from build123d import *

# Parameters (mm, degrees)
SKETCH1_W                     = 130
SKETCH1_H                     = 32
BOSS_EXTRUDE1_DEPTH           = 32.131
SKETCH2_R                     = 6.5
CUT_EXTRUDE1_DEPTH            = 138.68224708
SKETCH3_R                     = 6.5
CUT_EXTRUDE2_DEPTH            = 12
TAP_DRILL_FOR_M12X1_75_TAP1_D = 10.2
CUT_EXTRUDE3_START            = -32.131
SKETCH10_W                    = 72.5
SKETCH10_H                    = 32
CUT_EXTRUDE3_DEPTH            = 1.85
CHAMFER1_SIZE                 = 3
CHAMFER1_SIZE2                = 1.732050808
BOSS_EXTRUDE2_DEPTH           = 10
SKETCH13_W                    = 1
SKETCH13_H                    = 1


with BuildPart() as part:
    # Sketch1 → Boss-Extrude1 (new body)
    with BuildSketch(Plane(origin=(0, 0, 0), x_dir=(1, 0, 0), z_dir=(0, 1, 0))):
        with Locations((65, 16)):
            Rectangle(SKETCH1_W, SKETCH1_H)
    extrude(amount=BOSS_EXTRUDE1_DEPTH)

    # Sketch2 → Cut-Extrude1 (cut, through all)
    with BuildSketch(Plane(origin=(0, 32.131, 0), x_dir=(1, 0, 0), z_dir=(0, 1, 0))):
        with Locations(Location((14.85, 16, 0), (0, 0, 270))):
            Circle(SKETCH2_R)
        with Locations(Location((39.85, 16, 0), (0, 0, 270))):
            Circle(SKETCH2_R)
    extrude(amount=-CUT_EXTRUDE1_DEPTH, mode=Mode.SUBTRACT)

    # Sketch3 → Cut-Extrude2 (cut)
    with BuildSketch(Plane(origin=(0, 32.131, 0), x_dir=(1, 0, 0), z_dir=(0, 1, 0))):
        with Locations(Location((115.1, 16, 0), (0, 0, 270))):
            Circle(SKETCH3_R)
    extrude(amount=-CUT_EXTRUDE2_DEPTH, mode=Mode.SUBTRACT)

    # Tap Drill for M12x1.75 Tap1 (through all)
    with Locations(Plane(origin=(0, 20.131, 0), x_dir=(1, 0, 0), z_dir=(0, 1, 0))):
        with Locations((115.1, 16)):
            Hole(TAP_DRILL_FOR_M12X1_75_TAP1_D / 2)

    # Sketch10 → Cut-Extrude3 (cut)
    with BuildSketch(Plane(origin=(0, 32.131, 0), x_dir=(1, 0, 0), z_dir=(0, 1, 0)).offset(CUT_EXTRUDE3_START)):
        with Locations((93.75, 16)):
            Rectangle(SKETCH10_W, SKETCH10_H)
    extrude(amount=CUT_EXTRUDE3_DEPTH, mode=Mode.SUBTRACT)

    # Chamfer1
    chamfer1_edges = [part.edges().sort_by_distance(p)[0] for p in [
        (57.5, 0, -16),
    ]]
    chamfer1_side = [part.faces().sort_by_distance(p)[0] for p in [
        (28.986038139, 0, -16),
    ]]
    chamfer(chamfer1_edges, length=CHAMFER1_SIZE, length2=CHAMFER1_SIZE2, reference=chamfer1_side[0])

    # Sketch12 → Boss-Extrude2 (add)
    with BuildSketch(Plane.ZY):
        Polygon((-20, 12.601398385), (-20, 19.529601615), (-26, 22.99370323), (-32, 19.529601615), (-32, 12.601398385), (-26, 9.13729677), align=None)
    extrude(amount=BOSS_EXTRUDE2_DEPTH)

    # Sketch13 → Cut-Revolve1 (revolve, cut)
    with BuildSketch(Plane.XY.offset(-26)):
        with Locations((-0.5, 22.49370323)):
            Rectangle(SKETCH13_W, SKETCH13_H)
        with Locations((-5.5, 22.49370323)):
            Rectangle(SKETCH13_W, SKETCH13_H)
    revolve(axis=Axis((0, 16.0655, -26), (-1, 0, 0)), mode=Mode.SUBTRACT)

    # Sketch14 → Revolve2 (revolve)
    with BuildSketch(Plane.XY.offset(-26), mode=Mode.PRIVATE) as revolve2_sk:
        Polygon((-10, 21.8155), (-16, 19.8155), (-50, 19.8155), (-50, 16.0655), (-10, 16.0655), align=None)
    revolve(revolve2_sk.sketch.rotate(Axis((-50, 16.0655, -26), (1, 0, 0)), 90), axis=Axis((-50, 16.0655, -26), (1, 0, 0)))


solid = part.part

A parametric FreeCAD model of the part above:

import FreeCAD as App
import Part
import Sketcher

V = App.Vector
Q = App.Units.Quantity


def edges_at(feature, points):
    """Names of the edges that pass closest to the given points."""
    edges = feature.Shape.Edges
    near = lambda p: min(range(len(edges)), key=lambda i: edges[i].distToShape(Part.Vertex(*p))[0])
    return sorted({f"Edge{near(p) + 1}" for p in points})

doc = App.newDocument("Part")
body = doc.addObject("PartDesign::Body", "Body")

# Sketch on XZ plane
sketch1 = body.newObject("Sketcher::SketchObject", "Sketch")
sketch1.AttachmentSupport = (doc.getObject("XZ_Plane"), [""])
sketch1.MapMode = "FlatFace"
sketch1.addGeometry(Part.LineSegment(V(0, -32, 0), V(0, 0, 0)), False)
sketch1.addGeometry(Part.LineSegment(V(0, 0, 0), V(130, 0, 0)), False)
sketch1.addGeometry(Part.LineSegment(V(130, 0, 0), V(130, -32, 0)), False)
sketch1.addGeometry(Part.LineSegment(V(130, -32, 0), V(0, -32, 0)), False)
sketch1.addConstraint(Sketcher.Constraint("Coincident", 0, 2, 1, 1))
sketch1.addConstraint(Sketcher.Constraint("Coincident", 1, 2, 2, 1))
sketch1.addConstraint(Sketcher.Constraint("Coincident", 2, 2, 3, 1))
sketch1.addConstraint(Sketcher.Constraint("Coincident", 3, 2, 0, 1))
sketch1.addConstraint(Sketcher.Constraint("Vertical", 0))
sketch1.addConstraint(Sketcher.Constraint("Horizontal", 1))
sketch1.addConstraint(Sketcher.Constraint("Vertical", 2))
sketch1.addConstraint(Sketcher.Constraint("Horizontal", 3))
sketch1.addConstraint(Sketcher.Constraint("Coincident", 0, 2, -1, 1))
sketch1.addConstraint(Sketcher.Constraint("DistanceX", 1, 1, 1, 2, 130.0))
sketch1.addConstraint(Sketcher.Constraint("DistanceY", 0, 1, 0, 2, 32.0))
pad1 = body.newObject("PartDesign::Pad", "Pad")
pad1.Profile = sketch1
pad1.Length = 32.131
pad1.Reversed = True

# Sketch on XZ plane
sketch2 = body.newObject("Sketcher::SketchObject", "Sketch001")
sketch2.AttachmentSupport = (doc.getObject("XZ_Plane"), [""])
sketch2.MapMode = "FlatFace"
sketch2.AttachmentOffset = App.Placement(V(0, 0, -32.131), App.Rotation())
sketch2.addGeometry(Part.Circle(V(15, -16, 0), V(0, 0, 1), 6), False)
sketch2.addGeometry(Part.Circle(V(40, -16, 0), V(0, 0, 1), 6), False)
sketch2.addConstraint(Sketcher.Constraint("Equal", 0, 1))
sketch2.addConstraint(Sketcher.Constraint("Horizontal", 0, 3, 1, 3))
sketch2.addConstraint(Sketcher.Constraint("Diameter", 0, 13.0))
sketch2.addConstraint(Sketcher.Constraint("DistanceY", 0, 3, -1, 1, 16.0))
sketch2.addConstraint(Sketcher.Constraint("DistanceX", 0, 3, 1, 3, 25.0))
sketch2.addConstraint(Sketcher.Constraint("DistanceX", -1, 1, 0, 3, 14.85))
pocket1 = body.newObject("PartDesign::Pocket", "Pocket")
pocket1.Profile = sketch2
pocket1.Type = "ThroughAll"
pocket1.Reversed = True

# Sketch on XZ plane
sketch3 = body.newObject("Sketcher::SketchObject", "Sketch002")
sketch3.AttachmentSupport = (doc.getObject("XZ_Plane"), [""])
sketch3.MapMode = "FlatFace"
sketch3.AttachmentOffset = App.Placement(V(0, 0, -32.131), App.Rotation())
sketch3.addGeometry(Part.Circle(V(115, -16, 0), V(0, 0, 1), 6), False)
sketch3.addConstraint(Sketcher.Constraint("Diameter", 0, 13.0))
sketch3.addConstraint(Sketcher.Constraint("DistanceY", 0, 3, -1, 1, 16.0))
sketch3.addConstraint(Sketcher.Constraint("DistanceX", -1, 1, 0, 3, 115.1))
pocket2 = body.newObject("PartDesign::Pocket", "Pocket001")
pocket2.Profile = sketch3
pocket2.Length = 12
pocket2.Reversed = True

# Sketch on XZ plane
sketch4 = body.newObject("Sketcher::SketchObject", "Sketch003")
sketch4.AttachmentSupport = (doc.getObject("XZ_Plane"), [""])
sketch4.MapMode = "FlatFace"
sketch4.AttachmentOffset = App.Placement(V(0, 0, -20.131), App.Rotation())
sketch4.addGeometry(Part.Circle(V(115, -16, 0), V(0, 0, 1), 5), False)
sketch4.addConstraint(Sketcher.Constraint("Diameter", 0, 10.2))
sketch4.addConstraint(Sketcher.Constraint("DistanceY", 0, 3, -1, 1, 16.0))
sketch4.addConstraint(Sketcher.Constraint("DistanceX", -1, 1, 0, 3, 115.1))
doc.recompute()
hole = body.newObject("PartDesign::Hole", "Hole")
hole.Profile = sketch4
hole.ThreadType = "None"
hole.Diameter = 10.2
hole.DepthType = "ThroughAll"
hole.Reversed = True

# Sketch on XZ plane
sketch5 = body.newObject("Sketcher::SketchObject", "Sketch004")
sketch5.AttachmentSupport = (doc.getObject("XZ_Plane"), [""])
sketch5.MapMode = "FlatFace"
sketch5.addGeometry(Part.LineSegment(V(58, -32, 0), V(58, 0, 0)), False)
sketch5.addGeometry(Part.LineSegment(V(58, 0, 0), V(130, 0, 0)), False)
sketch5.addGeometry(Part.LineSegment(V(130, 0, 0), V(130, -32, 0)), False)
sketch5.addGeometry(Part.LineSegment(V(130, -32, 0), V(58, -32, 0)), False)
sketch5.addConstraint(Sketcher.Constraint("Coincident", 0, 2, 1, 1))
sketch5.addConstraint(Sketcher.Constraint("Coincident", 1, 2, 2, 1))
sketch5.addConstraint(Sketcher.Constraint("Coincident", 2, 2, 3, 1))
sketch5.addConstraint(Sketcher.Constraint("Coincident", 3, 2, 0, 1))
sketch5.addConstraint(Sketcher.Constraint("Vertical", 0))
sketch5.addConstraint(Sketcher.Constraint("Horizontal", 1))
sketch5.addConstraint(Sketcher.Constraint("Vertical", 2))
sketch5.addConstraint(Sketcher.Constraint("Horizontal", 3))
sketch5.addConstraint(Sketcher.Constraint("PointOnObject", 0, 2, -1))
sketch5.addConstraint(Sketcher.Constraint("DistanceY", 0, 1, 0, 2, 32.0))
sketch5.addConstraint(Sketcher.Constraint("DistanceX", 1, 1, 1, 2, 72.5))
sketch5.addConstraint(Sketcher.Constraint("DistanceX", -1, 1, 1, 2, 130.0))
pocket3 = body.newObject("PartDesign::Pocket", "Pocket002")
pocket3.Profile = sketch5
pocket3.Length = 1.85
doc.recompute()

chamfer = body.newObject("PartDesign::Chamfer", "Chamfer")
chamfer.Base = (pocket3, edges_at(pocket3, [(57.5, 0, -16)]))
chamfer.ChamferType = "Two distances"
chamfer.Size = 3
chamfer.Size2 = 1.732051

# Sketch on YZ plane
sketch6 = body.newObject("Sketcher::SketchObject", "Sketch005")
sketch6.AttachmentSupport = (doc.getObject("YZ_Plane"), [""])
sketch6.MapMode = "FlatFace"
sketch6.addGeometry(Part.LineSegment(V(13, -20, 0), V(20, -20, 0)), False)
sketch6.addGeometry(Part.LineSegment(V(20, -20, 0), V(23, -26, 0)), False)
sketch6.addGeometry(Part.LineSegment(V(23, -26, 0), V(20, -32, 0)), False)
sketch6.addGeometry(Part.LineSegment(V(20, -32, 0), V(13, -32, 0)), False)
sketch6.addGeometry(Part.LineSegment(V(13, -32, 0), V(9, -26, 0)), False)
sketch6.addGeometry(Part.LineSegment(V(9, -26, 0), V(13, -20, 0)), False)
sketch6.addConstraint(Sketcher.Constraint("Coincident", 0, 2, 1, 1))
sketch6.addConstraint(Sketcher.Constraint("Coincident", 1, 2, 2, 1))
sketch6.addConstraint(Sketcher.Constraint("Coincident", 2, 2, 3, 1))
sketch6.addConstraint(Sketcher.Constraint("Coincident", 3, 2, 4, 1))
sketch6.addConstraint(Sketcher.Constraint("Coincident", 4, 2, 5, 1))
sketch6.addConstraint(Sketcher.Constraint("Coincident", 5, 2, 0, 1))
sketch6.addConstraint(Sketcher.Constraint("Horizontal", 0))
sketch6.addConstraint(Sketcher.Constraint("Horizontal", 3))
sketch6.addConstraint(Sketcher.Constraint("Parallel", 1, 4))
sketch6.addConstraint(Sketcher.Constraint("Parallel", 2, 5))
sketch6.addConstraint(Sketcher.Constraint("Horizontal", 1, 2, 4, 2))
sketch6.addConstraint(Sketcher.Constraint("Vertical", 0, 2, 2, 2))
sketch6.addConstraint(Sketcher.Constraint("Vertical", 3, 2, 5, 2))
sketch6.addConstraint(Sketcher.Constraint("Angle", 1, Q("-60 deg")))
sketch6.addConstraint(Sketcher.Constraint("DistanceY", 0, 2, -1, 1, 20.0))
sketch6.addConstraint(Sketcher.Constraint("DistanceY", 1, 2, -1, 1, 26.0))
sketch6.addConstraint(Sketcher.Constraint("DistanceX", -1, 1, 0, 2, 19.529602))
sketch6.addConstraint(Sketcher.Constraint("DistanceX", -1, 1, 3, 2, 12.601398))
pad2 = body.newObject("PartDesign::Pad", "Pad001")
pad2.Profile = sketch6
pad2.Length = 10
pad2.Reversed = True

# Sketch on XY plane
sketch7 = body.newObject("Sketcher::SketchObject", "Sketch006")
sketch7.AttachmentSupport = (doc.getObject("XY_Plane"), [""])
sketch7.MapMode = "FlatFace"
sketch7.AttachmentOffset = App.Placement(V(0, 0, -26), App.Rotation())
sketch7.addGeometry(Part.LineSegment(V(-1, 23, 0), V(-1, 22, 0)), False)
sketch7.addGeometry(Part.LineSegment(V(-1, 22, 0), V(0, 22, 0)), False)
sketch7.addGeometry(Part.LineSegment(V(0, 22, 0), V(0, 23, 0)), False)
sketch7.addGeometry(Part.LineSegment(V(0, 23, 0), V(-1, 23, 0)), False)
sketch7.addGeometry(Part.LineSegment(V(-6, 23, 0), V(-6, 22, 0)), False)
sketch7.addGeometry(Part.LineSegment(V(-6, 22, 0), V(-5, 22, 0)), False)
sketch7.addGeometry(Part.LineSegment(V(-5, 22, 0), V(-5, 23, 0)), False)
sketch7.addGeometry(Part.LineSegment(V(-5, 23, 0), V(-6, 23, 0)), False)
sketch7.addGeometry(Part.LineSegment(V(0, 16.1, 0), V(-6, 16.1, 0)), True)  # axis
sketch7.addConstraint(Sketcher.Constraint("Coincident", 0, 2, 1, 1))
sketch7.addConstraint(Sketcher.Constraint("Coincident", 1, 2, 2, 1))
sketch7.addConstraint(Sketcher.Constraint("Coincident", 2, 2, 3, 1))
sketch7.addConstraint(Sketcher.Constraint("Coincident", 3, 2, 0, 1))
sketch7.addConstraint(Sketcher.Constraint("Coincident", 4, 2, 5, 1))
sketch7.addConstraint(Sketcher.Constraint("Coincident", 5, 2, 6, 1))
sketch7.addConstraint(Sketcher.Constraint("Coincident", 6, 2, 7, 1))
sketch7.addConstraint(Sketcher.Constraint("Coincident", 7, 2, 4, 1))
sketch7.addConstraint(Sketcher.Constraint("Vertical", 0))
sketch7.addConstraint(Sketcher.Constraint("Horizontal", 1))
sketch7.addConstraint(Sketcher.Constraint("Vertical", 2))
sketch7.addConstraint(Sketcher.Constraint("Horizontal", 3))
sketch7.addConstraint(Sketcher.Constraint("Vertical", 4))
sketch7.addConstraint(Sketcher.Constraint("Horizontal", 5))
sketch7.addConstraint(Sketcher.Constraint("Vertical", 6))
sketch7.addConstraint(Sketcher.Constraint("Horizontal", 7))
sketch7.addConstraint(Sketcher.Constraint("Horizontal", 8))
sketch7.addConstraint(Sketcher.Constraint("PointOnObject", 1, 2, -2))
sketch7.addConstraint(Sketcher.Constraint("PointOnObject", 8, 1, -2))
sketch7.addConstraint(Sketcher.Constraint("Horizontal", 1, 2, 4, 2))
sketch7.addConstraint(Sketcher.Constraint("Horizontal", 3, 2, 6, 2))
sketch7.addConstraint(Sketcher.Constraint("Vertical", 7, 2, 8, 2))
sketch7.addConstraint(Sketcher.Constraint("Equal", 3, 5))
sketch7.addConstraint(Sketcher.Constraint("Equal", 7, 0))
sketch7.addConstraint(Sketcher.Constraint("DistanceX", 1, 1, 1, 2, 1.0))
sketch7.addConstraint(Sketcher.Constraint("DistanceX", 8, 2, 8, 1, 6.0))
sketch7.addConstraint(Sketcher.Constraint("DistanceY", -1, 1, 8, 1, 16.0655))
sketch7.addConstraint(Sketcher.Constraint("DistanceY", -1, 1, 0, 2, 21.993703))
groove = body.newObject("PartDesign::Groove", "Groove")
groove.Profile = sketch7
groove.ReferenceAxis = (sketch7, ["Axis0"])
groove.Angle = 360

# Sketch on XY plane
sketch8 = body.newObject("Sketcher::SketchObject", "Sketch007")
sketch8.AttachmentSupport = (doc.getObject("XY_Plane"), [""])
sketch8.MapMode = "FlatFace"
sketch8.AttachmentOffset = App.Placement(V(0, 0, -26), App.Rotation())
sketch8.addGeometry(Part.LineSegment(V(-10, 21.8, 0), V(-16, 19.8, 0)), False)
sketch8.addGeometry(Part.LineSegment(V(-16, 19.8, 0), V(-50, 19.8, 0)), False)
sketch8.addGeometry(Part.LineSegment(V(-50, 19.8, 0), V(-50, 16.1, 0)), False)
sketch8.addGeometry(Part.LineSegment(V(-50, 16.1, 0), V(-10, 16.1, 0)), False)
sketch8.addGeometry(Part.LineSegment(V(-10, 16.1, 0), V(-10, 21.8, 0)), False)
sketch8.addGeometry(Part.LineSegment(V(-50, 16.1, 0), V(-10, 16.1, 0)), True)  # axis
sketch8.addConstraint(Sketcher.Constraint("Coincident", 0, 2, 1, 1))
sketch8.addConstraint(Sketcher.Constraint("Coincident", 1, 2, 2, 1))
sketch8.addConstraint(Sketcher.Constraint("Coincident", 2, 2, 3, 1))
sketch8.addConstraint(Sketcher.Constraint("Coincident", 3, 2, 4, 1))
sketch8.addConstraint(Sketcher.Constraint("Coincident", 4, 2, 0, 1))
sketch8.addConstraint(Sketcher.Constraint("Horizontal", 1))
sketch8.addConstraint(Sketcher.Constraint("Vertical", 2))
sketch8.addConstraint(Sketcher.Constraint("Horizontal", 3))
sketch8.addConstraint(Sketcher.Constraint("Vertical", 4))
sketch8.addConstraint(Sketcher.Constraint("Horizontal", 5))
sketch8.addConstraint(Sketcher.Constraint("Coincident", 5, 1, 2, 2))
sketch8.addConstraint(Sketcher.Constraint("Vertical", 4, 2, 5, 2))
sketch8.addConstraint(Sketcher.Constraint("DistanceX", 1, 2, 1, 1, 34.0))
sketch8.addConstraint(Sketcher.Constraint("DistanceX", 3, 1, 3, 2, 40.0))
sketch8.addConstraint(Sketcher.Constraint("DistanceX", 0, 2, -1, 1, 16.0))
sketch8.addConstraint(Sketcher.Constraint("DistanceY", 0, 2, 4, 2, 2.0))
sketch8.addConstraint(Sketcher.Constraint("DistanceY", 2, 2, 2, 1, 3.75))
sketch8.addConstraint(Sketcher.Constraint("DistanceY", -1, 1, 0, 2, 19.8155))
revolution = body.newObject("PartDesign::Revolution", "Revolution")
revolution.Profile = sketch8
revolution.ReferenceAxis = (sketch8, ["Axis0"])
revolution.Angle = 360

doc.recompute()
